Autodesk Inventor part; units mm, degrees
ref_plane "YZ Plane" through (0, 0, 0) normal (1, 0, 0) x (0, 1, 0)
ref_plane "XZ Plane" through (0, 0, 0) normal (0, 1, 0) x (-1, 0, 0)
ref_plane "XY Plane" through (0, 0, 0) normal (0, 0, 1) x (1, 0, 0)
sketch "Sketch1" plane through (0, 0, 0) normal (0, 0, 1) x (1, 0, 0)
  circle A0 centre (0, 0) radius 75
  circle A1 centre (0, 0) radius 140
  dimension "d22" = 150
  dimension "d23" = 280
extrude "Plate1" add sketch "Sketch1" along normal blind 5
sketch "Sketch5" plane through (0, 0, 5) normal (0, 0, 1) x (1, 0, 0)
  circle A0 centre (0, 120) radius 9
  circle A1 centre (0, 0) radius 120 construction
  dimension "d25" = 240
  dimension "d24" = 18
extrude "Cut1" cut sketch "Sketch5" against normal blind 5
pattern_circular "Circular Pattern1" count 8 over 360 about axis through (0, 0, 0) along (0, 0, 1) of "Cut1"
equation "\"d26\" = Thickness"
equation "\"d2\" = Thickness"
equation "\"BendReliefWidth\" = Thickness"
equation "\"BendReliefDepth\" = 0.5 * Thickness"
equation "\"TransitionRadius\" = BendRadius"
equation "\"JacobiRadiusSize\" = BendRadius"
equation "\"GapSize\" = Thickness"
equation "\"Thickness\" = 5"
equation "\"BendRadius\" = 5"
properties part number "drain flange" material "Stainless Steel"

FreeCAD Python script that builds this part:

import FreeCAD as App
import Part
import Sketcher
from FreeCAD import Vector

doc = App.newDocument("Part")
body = doc.addObject("PartDesign::Body", "Body")

sketch1 = doc.addObject("Sketcher::SketchObject", "Sketch")
body.addObject(sketch1)
sketch1.AttachmentSupport = (doc.XY_Plane, [""])
sketch1.MapMode = "FlatFace"
sketch1.addGeometry([
    Part.Circle(Vector(0, 0, 0), Vector(0, 0, 1), 140),
    Part.Circle(Vector(0, 0, 0), Vector(0, 0, 1), 75),
], False)
sketch1.addConstraint([
    Sketcher.Constraint("Coincident", 0, 3, -1, 1),
    Sketcher.Constraint("Coincident", 1, 3, -1, 1),
    Sketcher.Constraint("Diameter", 0, 280.0),
    Sketcher.Constraint("Diameter", 1, 150.0),
])
pad1 = doc.addObject("PartDesign::Pad", "Pad")
body.addObject(pad1)
pad1.Profile = sketch1
pad1.Length = 5

sketch2 = doc.addObject("Sketcher::SketchObject", "Sketch001")
body.addObject(sketch2)
sketch2.AttachmentSupport = (doc.XY_Plane, [""])
sketch2.MapMode = "FlatFace"
sketch2.AttachmentOffset = App.Placement(Vector(0, 0, 5), App.Rotation())
sketch2.addGeometry(Part.Circle(Vector(0, 120, 0), Vector(0, 0, 1), 9), False)
sketch2.addConstraint([
    Sketcher.Constraint("PointOnObject", 0, 3, -2),
    Sketcher.Constraint("Diameter", 0, 18.0),
    Sketcher.Constraint("DistanceY", -1, 1, 0, 3, 120.0),
])
pocket1 = doc.addObject("PartDesign::Pocket", "Pocket")
body.addObject(pocket1)
pocket1.Profile = sketch2
pocket1.Length = 5
doc.recompute()

polarpattern = doc.addObject("PartDesign::PolarPattern", "PolarPattern")
body.addObject(polarpattern)
polarpattern.Originals = [pocket1]
polarpattern.Axis = (doc.Z_Axis, [""])
polarpattern.Angle = 360
polarpattern.Occurrences = 8
body.Tip = polarpattern

doc.recompute()
